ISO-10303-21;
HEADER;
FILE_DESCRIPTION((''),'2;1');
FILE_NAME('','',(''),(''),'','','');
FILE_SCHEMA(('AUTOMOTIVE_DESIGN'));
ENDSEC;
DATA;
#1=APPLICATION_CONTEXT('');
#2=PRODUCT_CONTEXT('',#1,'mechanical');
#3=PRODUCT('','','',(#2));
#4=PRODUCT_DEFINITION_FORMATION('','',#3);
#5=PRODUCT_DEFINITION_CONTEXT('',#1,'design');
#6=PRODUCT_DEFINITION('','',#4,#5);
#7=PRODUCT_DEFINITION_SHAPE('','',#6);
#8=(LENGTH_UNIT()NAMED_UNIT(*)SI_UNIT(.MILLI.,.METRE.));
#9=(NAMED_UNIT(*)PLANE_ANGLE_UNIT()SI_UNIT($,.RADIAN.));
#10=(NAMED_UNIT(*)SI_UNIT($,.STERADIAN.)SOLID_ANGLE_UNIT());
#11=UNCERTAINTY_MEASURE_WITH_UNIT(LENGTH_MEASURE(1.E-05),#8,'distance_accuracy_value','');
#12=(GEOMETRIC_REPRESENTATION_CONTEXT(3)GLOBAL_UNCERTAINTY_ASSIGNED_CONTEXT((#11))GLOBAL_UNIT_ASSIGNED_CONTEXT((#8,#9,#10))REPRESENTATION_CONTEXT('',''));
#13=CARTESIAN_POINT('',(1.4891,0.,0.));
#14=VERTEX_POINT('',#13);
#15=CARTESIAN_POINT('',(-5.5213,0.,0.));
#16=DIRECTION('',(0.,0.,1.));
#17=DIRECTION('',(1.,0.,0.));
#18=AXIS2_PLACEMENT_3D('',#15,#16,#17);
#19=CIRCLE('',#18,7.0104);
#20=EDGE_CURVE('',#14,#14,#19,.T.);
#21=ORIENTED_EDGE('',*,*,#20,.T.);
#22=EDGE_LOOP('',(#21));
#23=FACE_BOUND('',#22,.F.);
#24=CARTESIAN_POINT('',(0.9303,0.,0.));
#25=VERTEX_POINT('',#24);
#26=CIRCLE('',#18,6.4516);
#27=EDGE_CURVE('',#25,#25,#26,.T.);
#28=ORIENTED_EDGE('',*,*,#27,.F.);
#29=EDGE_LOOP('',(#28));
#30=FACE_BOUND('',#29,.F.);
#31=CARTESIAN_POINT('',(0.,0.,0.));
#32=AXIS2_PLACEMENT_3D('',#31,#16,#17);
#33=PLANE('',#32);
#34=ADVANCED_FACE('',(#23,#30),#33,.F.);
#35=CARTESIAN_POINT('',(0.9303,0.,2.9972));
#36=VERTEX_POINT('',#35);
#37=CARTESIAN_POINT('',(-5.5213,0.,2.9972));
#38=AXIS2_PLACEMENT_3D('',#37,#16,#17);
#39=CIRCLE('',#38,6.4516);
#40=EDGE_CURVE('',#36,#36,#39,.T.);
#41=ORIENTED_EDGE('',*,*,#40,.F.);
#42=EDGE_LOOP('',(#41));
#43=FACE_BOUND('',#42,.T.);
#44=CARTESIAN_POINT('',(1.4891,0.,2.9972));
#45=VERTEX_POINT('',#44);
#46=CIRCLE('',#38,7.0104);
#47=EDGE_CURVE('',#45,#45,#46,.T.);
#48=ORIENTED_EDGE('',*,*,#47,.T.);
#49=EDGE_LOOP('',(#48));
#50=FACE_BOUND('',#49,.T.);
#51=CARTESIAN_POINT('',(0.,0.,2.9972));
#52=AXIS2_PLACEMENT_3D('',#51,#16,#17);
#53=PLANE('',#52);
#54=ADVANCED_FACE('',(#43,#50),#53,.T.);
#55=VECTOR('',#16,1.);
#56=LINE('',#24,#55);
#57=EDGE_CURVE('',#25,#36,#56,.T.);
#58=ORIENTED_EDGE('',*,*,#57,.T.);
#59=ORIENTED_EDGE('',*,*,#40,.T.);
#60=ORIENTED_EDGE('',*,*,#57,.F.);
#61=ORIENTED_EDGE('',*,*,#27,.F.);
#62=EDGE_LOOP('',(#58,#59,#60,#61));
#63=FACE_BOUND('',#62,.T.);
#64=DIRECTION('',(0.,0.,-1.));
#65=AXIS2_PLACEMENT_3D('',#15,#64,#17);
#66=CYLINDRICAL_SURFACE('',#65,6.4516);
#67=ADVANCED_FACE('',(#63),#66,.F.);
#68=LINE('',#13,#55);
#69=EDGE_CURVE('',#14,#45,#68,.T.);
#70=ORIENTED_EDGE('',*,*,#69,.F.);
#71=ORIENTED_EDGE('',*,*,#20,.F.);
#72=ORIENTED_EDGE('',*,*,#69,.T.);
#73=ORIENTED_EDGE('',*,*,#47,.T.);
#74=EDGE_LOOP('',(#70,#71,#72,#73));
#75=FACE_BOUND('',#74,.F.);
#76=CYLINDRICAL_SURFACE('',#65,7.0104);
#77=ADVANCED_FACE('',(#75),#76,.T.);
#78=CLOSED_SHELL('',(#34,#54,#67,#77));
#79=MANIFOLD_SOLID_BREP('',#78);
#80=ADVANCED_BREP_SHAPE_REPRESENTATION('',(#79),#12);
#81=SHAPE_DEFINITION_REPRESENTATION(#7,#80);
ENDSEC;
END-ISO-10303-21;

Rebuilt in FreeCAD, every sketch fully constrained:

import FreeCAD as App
import Part
import Sketcher

V = App.Vector
Q = App.Units.Quantity

doc = App.newDocument("Part")
body = doc.addObject("PartDesign::Body", "Body")

sketch1 = body.newObject("Sketcher::SketchObject", "Sketch")
sketch1.AttachmentSupport = (doc.getObject("XY_Plane"), [""])
sketch1.MapMode = "FlatFace"
sketch1.addGeometry([
    Part.Circle(V(-6, 0, 0), V(0, 0, 1), 7),
    Part.Circle(V(-6, 0, 0), V(0, 0, 1), 6),
], False)
sketch1.addConstraint([
    Sketcher.Constraint("Coincident", 1, 3, 0, 3),
    Sketcher.Constraint("PointOnObject", 0, 3, -1),
    Sketcher.Constraint("Diameter", 0, Q("0.552 in")),
    Sketcher.Constraint("Diameter", 1, Q("0.508 in")),
    Sketcher.Constraint("DistanceX", 0, 3, -1, 1, Q("5.5213 mm")),
])
pad1 = body.newObject("PartDesign::Pad", "Pad")
pad1.Profile = sketch1
pad1.Length = Q("0.118 in")

doc.recompute()
